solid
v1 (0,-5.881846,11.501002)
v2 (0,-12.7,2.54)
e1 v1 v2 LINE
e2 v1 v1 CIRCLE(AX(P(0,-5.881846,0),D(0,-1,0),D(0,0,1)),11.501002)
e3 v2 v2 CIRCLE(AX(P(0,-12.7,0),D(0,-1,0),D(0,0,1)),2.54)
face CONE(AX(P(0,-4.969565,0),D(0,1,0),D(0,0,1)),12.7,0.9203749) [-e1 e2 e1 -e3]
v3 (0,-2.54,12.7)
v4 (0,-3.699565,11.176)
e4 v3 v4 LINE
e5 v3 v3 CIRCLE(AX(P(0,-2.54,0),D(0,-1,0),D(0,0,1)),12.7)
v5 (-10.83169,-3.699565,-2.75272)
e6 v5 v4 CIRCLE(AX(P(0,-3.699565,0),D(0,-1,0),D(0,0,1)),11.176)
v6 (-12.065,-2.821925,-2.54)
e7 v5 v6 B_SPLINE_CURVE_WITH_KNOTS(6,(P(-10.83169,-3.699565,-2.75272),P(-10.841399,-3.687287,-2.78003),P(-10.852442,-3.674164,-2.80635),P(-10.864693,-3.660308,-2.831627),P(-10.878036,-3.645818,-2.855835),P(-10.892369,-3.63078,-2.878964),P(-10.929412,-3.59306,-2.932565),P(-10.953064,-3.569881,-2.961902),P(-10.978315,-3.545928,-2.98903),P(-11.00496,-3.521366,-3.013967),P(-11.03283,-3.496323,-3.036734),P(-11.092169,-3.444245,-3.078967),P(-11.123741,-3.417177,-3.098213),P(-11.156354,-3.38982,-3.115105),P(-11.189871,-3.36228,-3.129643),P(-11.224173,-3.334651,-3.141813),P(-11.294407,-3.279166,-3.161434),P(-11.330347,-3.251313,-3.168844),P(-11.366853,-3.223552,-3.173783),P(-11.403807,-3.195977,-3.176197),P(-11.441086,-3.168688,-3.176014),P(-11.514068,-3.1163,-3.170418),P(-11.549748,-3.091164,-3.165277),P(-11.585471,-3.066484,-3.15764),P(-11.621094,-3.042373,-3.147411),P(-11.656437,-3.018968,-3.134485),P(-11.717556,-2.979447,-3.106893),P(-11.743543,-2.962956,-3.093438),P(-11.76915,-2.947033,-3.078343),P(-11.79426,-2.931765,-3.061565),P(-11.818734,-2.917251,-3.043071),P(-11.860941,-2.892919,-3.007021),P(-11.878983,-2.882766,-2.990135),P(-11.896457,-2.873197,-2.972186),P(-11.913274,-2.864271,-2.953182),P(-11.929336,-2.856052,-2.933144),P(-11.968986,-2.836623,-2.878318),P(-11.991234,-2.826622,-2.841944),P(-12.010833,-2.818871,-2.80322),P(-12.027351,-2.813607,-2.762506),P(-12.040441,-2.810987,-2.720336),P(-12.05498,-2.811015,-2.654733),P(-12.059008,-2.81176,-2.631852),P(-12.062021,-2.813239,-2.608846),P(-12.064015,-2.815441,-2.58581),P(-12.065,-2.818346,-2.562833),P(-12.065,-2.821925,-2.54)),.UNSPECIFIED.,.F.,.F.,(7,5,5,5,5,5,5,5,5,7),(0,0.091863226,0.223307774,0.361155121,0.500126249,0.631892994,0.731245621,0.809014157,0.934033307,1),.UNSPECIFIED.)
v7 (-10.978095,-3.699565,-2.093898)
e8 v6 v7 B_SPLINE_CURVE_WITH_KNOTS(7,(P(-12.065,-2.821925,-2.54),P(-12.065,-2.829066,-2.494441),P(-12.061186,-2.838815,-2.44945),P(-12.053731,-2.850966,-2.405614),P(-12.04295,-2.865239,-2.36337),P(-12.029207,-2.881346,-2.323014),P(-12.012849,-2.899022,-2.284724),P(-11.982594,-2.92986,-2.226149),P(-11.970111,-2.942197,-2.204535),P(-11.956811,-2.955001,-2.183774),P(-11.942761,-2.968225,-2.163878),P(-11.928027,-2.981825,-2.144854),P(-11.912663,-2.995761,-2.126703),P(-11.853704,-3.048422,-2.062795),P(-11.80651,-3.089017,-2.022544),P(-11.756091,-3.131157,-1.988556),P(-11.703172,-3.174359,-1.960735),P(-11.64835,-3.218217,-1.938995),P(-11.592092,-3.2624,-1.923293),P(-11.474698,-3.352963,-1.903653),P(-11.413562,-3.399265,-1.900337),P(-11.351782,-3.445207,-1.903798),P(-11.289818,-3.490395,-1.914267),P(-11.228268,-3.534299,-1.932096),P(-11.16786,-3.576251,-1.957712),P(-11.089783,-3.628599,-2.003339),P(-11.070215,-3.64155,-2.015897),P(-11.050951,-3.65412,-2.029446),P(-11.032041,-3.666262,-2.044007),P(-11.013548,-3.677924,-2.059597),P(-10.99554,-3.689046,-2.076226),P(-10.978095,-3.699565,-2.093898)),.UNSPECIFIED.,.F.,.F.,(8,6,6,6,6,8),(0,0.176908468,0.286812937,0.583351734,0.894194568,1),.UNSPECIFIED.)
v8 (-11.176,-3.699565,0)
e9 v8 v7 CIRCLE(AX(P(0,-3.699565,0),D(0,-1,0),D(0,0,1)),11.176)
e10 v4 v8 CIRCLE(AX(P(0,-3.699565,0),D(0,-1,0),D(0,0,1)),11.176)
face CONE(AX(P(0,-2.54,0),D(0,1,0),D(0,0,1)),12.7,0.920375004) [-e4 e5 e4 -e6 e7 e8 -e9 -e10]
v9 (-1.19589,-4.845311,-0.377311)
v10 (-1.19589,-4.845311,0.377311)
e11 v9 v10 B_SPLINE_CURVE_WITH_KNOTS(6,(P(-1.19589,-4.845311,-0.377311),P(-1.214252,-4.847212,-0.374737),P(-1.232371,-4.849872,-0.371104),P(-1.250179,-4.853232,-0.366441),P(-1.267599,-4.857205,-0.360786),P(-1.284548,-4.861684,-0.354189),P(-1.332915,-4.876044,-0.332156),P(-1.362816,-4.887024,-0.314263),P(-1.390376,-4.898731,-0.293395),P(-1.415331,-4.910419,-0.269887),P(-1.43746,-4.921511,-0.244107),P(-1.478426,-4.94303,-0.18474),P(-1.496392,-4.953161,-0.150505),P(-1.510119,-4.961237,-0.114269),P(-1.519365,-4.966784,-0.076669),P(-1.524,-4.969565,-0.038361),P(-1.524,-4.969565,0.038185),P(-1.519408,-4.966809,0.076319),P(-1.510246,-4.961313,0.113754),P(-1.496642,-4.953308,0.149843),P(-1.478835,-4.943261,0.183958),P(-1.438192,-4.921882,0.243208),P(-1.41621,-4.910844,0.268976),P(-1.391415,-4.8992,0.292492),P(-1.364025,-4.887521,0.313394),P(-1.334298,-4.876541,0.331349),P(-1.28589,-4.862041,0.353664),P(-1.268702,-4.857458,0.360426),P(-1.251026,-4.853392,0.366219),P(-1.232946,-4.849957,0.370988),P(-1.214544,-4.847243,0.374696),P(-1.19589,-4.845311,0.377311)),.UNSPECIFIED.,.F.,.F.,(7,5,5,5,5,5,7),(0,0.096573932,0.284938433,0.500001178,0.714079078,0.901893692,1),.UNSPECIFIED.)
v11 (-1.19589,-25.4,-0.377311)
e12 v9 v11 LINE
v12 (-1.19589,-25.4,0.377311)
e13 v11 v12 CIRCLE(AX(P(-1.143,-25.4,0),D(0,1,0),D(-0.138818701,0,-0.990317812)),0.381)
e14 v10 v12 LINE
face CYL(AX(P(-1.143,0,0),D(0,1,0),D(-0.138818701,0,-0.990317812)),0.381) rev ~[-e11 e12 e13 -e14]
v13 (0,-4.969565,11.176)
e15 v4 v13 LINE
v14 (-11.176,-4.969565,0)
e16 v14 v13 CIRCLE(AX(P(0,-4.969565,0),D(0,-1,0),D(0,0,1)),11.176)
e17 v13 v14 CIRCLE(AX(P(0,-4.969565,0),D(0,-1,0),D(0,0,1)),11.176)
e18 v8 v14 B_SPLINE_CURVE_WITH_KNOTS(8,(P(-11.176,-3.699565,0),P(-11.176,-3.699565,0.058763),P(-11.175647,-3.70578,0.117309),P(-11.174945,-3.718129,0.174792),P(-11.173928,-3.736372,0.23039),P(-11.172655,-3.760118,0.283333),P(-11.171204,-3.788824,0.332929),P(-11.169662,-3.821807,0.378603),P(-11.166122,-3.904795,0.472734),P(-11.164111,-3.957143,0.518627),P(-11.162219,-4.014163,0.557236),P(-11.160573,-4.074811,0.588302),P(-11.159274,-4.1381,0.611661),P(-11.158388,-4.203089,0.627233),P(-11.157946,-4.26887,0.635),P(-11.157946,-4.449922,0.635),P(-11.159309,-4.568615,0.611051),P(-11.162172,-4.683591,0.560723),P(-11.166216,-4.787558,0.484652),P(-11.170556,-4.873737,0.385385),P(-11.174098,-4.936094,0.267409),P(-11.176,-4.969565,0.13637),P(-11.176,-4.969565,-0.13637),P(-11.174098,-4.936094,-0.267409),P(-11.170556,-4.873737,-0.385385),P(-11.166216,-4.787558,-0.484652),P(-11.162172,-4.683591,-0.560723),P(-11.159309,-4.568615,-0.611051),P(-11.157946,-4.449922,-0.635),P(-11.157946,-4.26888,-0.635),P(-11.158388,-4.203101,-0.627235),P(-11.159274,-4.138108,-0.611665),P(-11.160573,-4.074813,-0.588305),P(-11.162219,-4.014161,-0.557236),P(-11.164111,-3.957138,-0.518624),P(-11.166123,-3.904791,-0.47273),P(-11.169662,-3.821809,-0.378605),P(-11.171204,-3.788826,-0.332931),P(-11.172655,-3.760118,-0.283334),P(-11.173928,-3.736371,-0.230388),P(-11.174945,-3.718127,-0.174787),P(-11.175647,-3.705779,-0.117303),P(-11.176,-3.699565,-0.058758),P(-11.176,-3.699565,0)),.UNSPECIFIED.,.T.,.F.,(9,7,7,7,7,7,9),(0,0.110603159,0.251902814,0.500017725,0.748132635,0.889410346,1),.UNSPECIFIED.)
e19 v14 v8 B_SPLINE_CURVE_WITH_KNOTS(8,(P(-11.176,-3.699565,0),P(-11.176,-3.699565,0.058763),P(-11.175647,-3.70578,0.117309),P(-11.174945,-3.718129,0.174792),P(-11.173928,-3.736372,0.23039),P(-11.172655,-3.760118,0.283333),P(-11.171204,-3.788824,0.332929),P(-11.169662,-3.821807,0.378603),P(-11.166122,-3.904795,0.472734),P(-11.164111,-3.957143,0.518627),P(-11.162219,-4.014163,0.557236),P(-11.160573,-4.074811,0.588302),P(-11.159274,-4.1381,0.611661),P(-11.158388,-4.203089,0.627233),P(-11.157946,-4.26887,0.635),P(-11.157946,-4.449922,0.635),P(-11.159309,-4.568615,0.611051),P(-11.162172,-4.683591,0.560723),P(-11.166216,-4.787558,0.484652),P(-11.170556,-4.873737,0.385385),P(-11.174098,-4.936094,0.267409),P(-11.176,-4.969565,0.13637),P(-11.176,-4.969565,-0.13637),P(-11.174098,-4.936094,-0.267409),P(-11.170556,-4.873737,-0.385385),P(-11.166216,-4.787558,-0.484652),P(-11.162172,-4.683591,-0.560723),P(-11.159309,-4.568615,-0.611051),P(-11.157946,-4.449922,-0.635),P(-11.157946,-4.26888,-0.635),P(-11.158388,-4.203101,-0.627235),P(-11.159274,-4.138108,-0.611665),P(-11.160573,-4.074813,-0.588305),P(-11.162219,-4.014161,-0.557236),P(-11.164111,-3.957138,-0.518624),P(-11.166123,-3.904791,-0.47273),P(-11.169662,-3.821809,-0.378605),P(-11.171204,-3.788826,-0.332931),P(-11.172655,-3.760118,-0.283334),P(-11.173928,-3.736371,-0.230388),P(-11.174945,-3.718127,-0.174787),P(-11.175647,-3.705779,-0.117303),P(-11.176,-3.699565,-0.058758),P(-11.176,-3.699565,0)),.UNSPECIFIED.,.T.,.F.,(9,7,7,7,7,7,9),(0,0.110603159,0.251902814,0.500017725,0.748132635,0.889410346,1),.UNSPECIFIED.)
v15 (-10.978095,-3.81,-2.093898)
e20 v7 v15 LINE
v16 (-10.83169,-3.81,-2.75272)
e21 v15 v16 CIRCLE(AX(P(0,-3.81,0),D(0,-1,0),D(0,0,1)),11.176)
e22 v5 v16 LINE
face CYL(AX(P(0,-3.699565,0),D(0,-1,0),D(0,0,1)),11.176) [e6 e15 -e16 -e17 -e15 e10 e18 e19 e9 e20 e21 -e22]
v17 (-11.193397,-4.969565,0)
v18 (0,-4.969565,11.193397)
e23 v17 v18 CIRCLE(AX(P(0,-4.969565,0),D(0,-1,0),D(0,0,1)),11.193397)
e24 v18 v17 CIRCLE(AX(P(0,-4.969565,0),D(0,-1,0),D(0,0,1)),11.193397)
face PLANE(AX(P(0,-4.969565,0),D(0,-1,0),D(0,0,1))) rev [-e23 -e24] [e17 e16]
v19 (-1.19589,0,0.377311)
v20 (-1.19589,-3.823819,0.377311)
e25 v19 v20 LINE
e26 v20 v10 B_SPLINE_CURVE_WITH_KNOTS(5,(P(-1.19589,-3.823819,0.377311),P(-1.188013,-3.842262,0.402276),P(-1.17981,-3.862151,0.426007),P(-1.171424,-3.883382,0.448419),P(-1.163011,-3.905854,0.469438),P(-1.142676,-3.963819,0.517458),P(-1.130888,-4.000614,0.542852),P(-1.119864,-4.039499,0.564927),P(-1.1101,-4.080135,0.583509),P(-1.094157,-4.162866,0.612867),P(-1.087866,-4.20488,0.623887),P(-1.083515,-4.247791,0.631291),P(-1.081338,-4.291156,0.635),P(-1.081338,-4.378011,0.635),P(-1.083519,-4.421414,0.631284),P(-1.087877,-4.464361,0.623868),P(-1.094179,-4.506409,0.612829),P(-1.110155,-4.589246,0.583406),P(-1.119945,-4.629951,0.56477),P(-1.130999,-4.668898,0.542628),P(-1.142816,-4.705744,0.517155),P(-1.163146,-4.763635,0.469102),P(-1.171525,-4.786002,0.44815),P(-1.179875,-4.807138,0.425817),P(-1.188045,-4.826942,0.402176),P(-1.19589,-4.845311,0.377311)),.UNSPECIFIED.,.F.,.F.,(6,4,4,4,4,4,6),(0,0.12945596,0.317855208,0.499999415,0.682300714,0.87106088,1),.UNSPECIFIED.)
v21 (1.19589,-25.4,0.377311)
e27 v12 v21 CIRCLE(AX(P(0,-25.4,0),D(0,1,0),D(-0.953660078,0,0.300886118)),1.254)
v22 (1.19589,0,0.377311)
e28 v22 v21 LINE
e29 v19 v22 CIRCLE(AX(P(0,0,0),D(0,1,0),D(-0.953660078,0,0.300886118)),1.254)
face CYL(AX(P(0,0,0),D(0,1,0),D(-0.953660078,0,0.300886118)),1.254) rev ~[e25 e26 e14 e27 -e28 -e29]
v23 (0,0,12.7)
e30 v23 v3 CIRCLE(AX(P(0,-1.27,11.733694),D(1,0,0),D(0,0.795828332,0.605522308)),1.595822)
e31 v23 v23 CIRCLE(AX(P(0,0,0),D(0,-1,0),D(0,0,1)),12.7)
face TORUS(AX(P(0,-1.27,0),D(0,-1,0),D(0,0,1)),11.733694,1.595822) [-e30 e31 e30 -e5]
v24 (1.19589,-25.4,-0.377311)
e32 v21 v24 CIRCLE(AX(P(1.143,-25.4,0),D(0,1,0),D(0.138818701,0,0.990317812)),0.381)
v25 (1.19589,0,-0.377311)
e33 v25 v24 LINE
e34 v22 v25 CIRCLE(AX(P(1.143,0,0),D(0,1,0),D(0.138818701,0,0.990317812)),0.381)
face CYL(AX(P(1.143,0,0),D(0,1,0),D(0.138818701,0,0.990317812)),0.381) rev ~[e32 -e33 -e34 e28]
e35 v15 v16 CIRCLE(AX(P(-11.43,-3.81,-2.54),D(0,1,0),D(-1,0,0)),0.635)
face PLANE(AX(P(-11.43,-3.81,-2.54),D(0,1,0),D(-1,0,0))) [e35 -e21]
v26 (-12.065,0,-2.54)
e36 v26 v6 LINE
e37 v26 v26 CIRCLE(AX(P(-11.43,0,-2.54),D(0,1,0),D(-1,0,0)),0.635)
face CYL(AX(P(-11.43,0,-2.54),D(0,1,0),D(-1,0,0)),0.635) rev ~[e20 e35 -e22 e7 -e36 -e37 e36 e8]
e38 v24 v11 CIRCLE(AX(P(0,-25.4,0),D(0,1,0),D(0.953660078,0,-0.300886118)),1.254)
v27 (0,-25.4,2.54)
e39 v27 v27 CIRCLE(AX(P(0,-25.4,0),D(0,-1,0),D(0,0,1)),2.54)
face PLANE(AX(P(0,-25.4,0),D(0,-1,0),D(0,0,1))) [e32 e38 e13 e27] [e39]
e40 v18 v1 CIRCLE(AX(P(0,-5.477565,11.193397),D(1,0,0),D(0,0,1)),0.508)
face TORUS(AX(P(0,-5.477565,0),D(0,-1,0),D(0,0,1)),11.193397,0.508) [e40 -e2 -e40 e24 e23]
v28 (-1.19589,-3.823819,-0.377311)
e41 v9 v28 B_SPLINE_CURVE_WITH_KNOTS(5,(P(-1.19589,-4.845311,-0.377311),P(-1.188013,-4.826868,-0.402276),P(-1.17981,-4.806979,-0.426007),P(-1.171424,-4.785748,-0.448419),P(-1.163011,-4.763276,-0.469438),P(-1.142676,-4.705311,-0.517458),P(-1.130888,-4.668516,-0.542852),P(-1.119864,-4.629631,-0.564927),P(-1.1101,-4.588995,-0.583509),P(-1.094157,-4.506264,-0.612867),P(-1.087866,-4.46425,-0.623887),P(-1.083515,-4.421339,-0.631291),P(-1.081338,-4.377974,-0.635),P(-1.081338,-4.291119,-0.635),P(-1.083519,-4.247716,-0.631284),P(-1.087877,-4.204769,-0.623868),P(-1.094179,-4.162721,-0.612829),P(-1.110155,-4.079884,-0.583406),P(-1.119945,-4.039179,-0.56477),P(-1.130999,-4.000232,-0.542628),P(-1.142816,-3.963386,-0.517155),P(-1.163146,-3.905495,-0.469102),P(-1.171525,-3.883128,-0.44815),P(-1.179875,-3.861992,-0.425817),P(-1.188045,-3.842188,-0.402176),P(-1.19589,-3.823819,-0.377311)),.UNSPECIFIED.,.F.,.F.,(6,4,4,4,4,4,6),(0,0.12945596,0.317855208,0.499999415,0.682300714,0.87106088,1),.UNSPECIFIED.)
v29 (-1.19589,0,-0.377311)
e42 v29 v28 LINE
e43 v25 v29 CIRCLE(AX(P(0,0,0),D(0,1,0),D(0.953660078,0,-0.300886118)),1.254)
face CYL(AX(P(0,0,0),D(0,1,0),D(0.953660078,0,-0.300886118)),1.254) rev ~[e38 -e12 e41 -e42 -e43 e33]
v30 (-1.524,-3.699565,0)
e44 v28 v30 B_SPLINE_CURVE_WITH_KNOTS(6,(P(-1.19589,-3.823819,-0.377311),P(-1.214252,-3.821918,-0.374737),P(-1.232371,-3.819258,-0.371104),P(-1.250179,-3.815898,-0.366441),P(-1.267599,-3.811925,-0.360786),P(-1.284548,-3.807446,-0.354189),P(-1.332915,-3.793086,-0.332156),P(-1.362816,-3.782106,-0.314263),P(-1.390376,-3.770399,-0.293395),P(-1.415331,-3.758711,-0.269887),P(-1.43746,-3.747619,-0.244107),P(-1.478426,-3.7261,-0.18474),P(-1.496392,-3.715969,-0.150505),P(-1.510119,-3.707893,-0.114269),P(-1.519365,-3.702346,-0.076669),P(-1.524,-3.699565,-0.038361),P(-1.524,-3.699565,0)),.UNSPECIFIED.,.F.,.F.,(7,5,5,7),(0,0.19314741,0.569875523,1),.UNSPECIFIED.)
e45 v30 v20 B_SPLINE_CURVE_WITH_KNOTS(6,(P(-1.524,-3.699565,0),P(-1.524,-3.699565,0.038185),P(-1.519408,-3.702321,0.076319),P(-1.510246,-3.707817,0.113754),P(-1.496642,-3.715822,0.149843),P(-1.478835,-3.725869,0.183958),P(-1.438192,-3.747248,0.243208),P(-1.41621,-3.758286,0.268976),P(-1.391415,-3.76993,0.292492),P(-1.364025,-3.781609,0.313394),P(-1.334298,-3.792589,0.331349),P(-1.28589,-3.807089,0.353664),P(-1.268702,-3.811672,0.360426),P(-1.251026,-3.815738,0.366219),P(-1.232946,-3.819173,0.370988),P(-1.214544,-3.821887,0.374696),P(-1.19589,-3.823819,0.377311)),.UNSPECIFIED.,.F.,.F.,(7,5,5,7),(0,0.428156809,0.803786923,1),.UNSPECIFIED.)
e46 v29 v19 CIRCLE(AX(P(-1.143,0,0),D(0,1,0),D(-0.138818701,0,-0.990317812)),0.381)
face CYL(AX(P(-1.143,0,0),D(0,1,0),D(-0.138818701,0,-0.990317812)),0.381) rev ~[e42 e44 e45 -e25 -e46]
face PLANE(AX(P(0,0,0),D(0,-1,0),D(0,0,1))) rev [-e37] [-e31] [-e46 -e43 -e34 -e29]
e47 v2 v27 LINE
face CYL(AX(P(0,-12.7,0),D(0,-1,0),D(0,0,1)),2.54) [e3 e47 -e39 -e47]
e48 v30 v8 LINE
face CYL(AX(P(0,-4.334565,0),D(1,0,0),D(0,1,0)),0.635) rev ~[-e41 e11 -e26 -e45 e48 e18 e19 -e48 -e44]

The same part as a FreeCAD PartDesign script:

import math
import FreeCAD as App
import Part
import Sketcher
from FreeCAD import Vector
Q = App.Units.Quantity


def edges_at(feature, points):
    """Names of the edges that pass closest to the given points."""
    edges = feature.Shape.Edges
    near = lambda p: min(range(len(edges)), key=lambda i: edges[i].distToShape(Part.Vertex(*p))[0])
    return sorted({f"Edge{near(p) + 1}" for p in points})

doc = App.newDocument("Part")
body = doc.addObject("PartDesign::Body", "Body")

# Sketch on YZ plane
sketch1 = doc.addObject("Sketcher::SketchObject", "Sketch")
body.addObject(sketch1)
sketch1.AttachmentSupport = (doc.YZ_Plane, [""])
sketch1.MapMode = "FlatFace"
sketch1.addGeometry([
    Part.LineSegment(Vector(-25.4, 1, 0), Vector(0, 1, 0)),  # 0
    Part.LineSegment(Vector(0, 1, 0), Vector(0, 12.7, 0)),  # 1
    Part.ArcOfCircle(Part.Circle(Vector(-1.3, 11.7, 0), Vector(0, 0, 1), 1.6), math.radians(37), math.radians(143)),  # 2
    Part.LineSegment(Vector(-2.5, 12.7, 0), Vector(-3.7, 11.2, 0)),  # 3
    Part.LineSegment(Vector(-3.7, 11.2, 0), Vector(-5, 11.2, 0)),  # 4
    Part.LineSegment(Vector(-5, 11.2, 0), Vector(-5, 12.7, 0)),  # 5
    Part.LineSegment(Vector(-5, 12.7, 0), Vector(-12.7, 2.5, 0)),  # 6
    Part.LineSegment(Vector(-12.7, 2.5, 0), Vector(-25.4, 2.5, 0)),  # 7
    Part.LineSegment(Vector(-25.4, 2.5, 0), Vector(-25.4, 1, 0)),  # 8
], False)
sketch1.addConstraint([
    Sketcher.Constraint("Coincident", 0, 2, 1, 1),
    Sketcher.Constraint("Coincident", 1, 2, 2, 1),
    Sketcher.Constraint("Tangent", 2, 2, 3, 1),
    Sketcher.Constraint("Coincident", 3, 2, 4, 1),
    Sketcher.Constraint("Coincident", 4, 2, 5, 1),
    Sketcher.Constraint("Coincident", 5, 2, 6, 1),
    Sketcher.Constraint("Coincident", 6, 2, 7, 1),
    Sketcher.Constraint("Coincident", 7, 2, 8, 1),
    Sketcher.Constraint("Coincident", 8, 2, 0, 1),
    Sketcher.Constraint("Horizontal", 0),
    Sketcher.Constraint("Vertical", 1),
    Sketcher.Constraint("Horizontal", 4),
    Sketcher.Constraint("Vertical", 5),
    Sketcher.Constraint("Horizontal", 7),
    Sketcher.Constraint("Vertical", 8),
    Sketcher.Constraint("PointOnObject", 0, 2, -2),
    Sketcher.Constraint("Parallel", 3, 6),
    Sketcher.Constraint("Horizontal", 1, 2, 2, 2),
    Sketcher.Constraint("Horizontal", 2, 2, 5, 2),
    Sketcher.Constraint("DistanceX", 0, 1, 0, 2, Q("1 in")),
    Sketcher.Constraint("DistanceX", 7, 2, 7, 1, Q("0.5 in")),
    Sketcher.Constraint("DistanceX", 4, 2, 4, 1, Q("0.05 in")),
    Sketcher.Constraint("DistanceY", 5, 1, 5, 2, Q("0.06 in")),
    Sketcher.Constraint("DistanceY", -1, 1, 1, 2, Q("0.5 in")),
    Sketcher.Constraint("DistanceX", 2, 2, -1, 1, Q("0.1 in")),
    Sketcher.Constraint("DistanceY", -1, 1, 6, 2, Q("0.1 in")),
    Sketcher.Constraint("DistanceY", 1, 1, 1, 2, 11.7),
])
revolution = doc.addObject("PartDesign::Revolution", "Revolution")
body.addObject(revolution)
revolution.Profile = sketch1
revolution.ReferenceAxis = (sketch1, ["H_Axis"])
revolution.Angle = 360
doc.recompute()

fillet = doc.addObject("PartDesign::Fillet", "Fillet")
body.addObject(fillet)
fillet.Base = (revolution, edges_at(revolution, [(0, -4.97, -12.7)]))
fillet.Radius = Q("0.02 in")

# Sketch on XZ plane
sketch2 = doc.addObject("Sketcher::SketchObject", "Sketch001")
body.addObject(sketch2)
sketch2.AttachmentSupport = (doc.XZ_Plane, [""])
sketch2.MapMode = "FlatFace"
sketch2.addGeometry([
    Part.ArcOfCircle(Part.Circle(Vector(1.14, 0, 0), Vector(0, 0, 1), 0.13), math.radians(-90), math.radians(90)),
    Part.LineSegment(Vector(1.14, -0.13, 0), Vector(-1.14, -0.13, 0)),
    Part.ArcOfCircle(Part.Circle(Vector(-1.14, 0, 0), Vector(0, 0, 1), 0.13), math.radians(90), math.radians(270)),
    Part.LineSegment(Vector(-1.14, 0.13, 0), Vector(1.14, 0.13, 0)),
], False)
sketch2.addConstraint([
    Sketcher.Constraint("Tangent", 0, 1, 1, 1),
    Sketcher.Constraint("Tangent", 1, 2, 2, 2),
    Sketcher.Constraint("Tangent", 2, 1, 3, 1),
    Sketcher.Constraint("Tangent", 3, 2, 0, 2),
    Sketcher.Constraint("Horizontal", 1),
    Sketcher.Constraint("Horizontal", 3),
    Sketcher.Constraint("Symmetric", 0, 3, 2, 3, -1, 1),
    Sketcher.Constraint("Radius", 0, Q("0.005 in")),
    Sketcher.Constraint("DistanceX", 1, 2, 1, 1, Q("0.09 in")),
])
pocket1 = doc.addObject("PartDesign::Pocket", "Pocket")
body.addObject(pocket1)
pocket1.Profile = sketch2
pocket1.Type = "ThroughAll"
pocket1.Reversed = True

# Sketch on YZ plane
sketch3 = doc.addObject("Sketcher::SketchObject", "Sketch002")
body.addObject(sketch3)
sketch3.AttachmentSupport = (doc.YZ_Plane, [""])
sketch3.MapMode = "FlatFace"
sketch3.addGeometry(Part.Circle(Vector(-4.3, 0, 0), Vector(0, 0, 1), 0.6), False)
sketch3.addConstraint([
    Sketcher.Constraint("PointOnObject", 0, 3, -1),
    Sketcher.Constraint("Diameter", 0, Q("0.05 in")),
    Sketcher.Constraint("DistanceX", 0, 3, -1, 1, 4.334565),
])
pocket2 = doc.addObject("PartDesign::Pocket", "Pocket001")
body.addObject(pocket2)
pocket2.Profile = sketch3
pocket2.Type = "ThroughAll"

# Sketch on XZ plane
sketch4 = doc.addObject("Sketcher::SketchObject", "Sketch003")
body.addObject(sketch4)
sketch4.AttachmentSupport = (doc.XZ_Plane, [""])
sketch4.MapMode = "FlatFace"
sketch4.addGeometry(Part.Circle(Vector(-11.4, -2.5, 0), Vector(0, 0, 1), 0.6), False)
sketch4.addConstraint([
    Sketcher.Constraint("Diameter", 0, Q("0.05 in")),
    Sketcher.Constraint("DistanceY", 0, 3, -1, 1, Q("0.1 in")),
    Sketcher.Constraint("DistanceX", 0, 3, -1, 1, Q("0.45 in")),
])
pocket3 = doc.addObject("PartDesign::Pocket", "Pocket002")
body.addObject(pocket3)
pocket3.Profile = sketch4
pocket3.Length = Q("0.15 in")
pocket3.Reversed = True

# Sketch on XZ plane
sketch5 = doc.addObject("Sketcher::SketchObject", "Sketch004")
body.addObject(sketch5)
sketch5.AttachmentSupport = (doc.XZ_Plane, [""])
sketch5.MapMode = "FlatFace"
sketch5.addGeometry([
    Part.ArcOfCircle(Part.Circle(Vector(1.14, 0, 0), Vector(0, 0, 1), 0.38), math.radians(-82), math.radians(82)),  # 0
    Part.ArcOfCircle(Part.Circle(Vector(0, 0, 0), Vector(0, 0, 1), 1.25), math.radians(-162), math.radians(-18)),  # 1
    Part.ArcOfCircle(Part.Circle(Vector(-1.14, 0, 0), Vector(0, 0, 1), 0.38), math.radians(98), math.radians(262)),  # 2
    Part.ArcOfCircle(Part.Circle(Vector(0, 0, 0), Vector(0, 0, 1), 1.25), math.radians(18), math.radians(162)),  # 3
    Part.ArcOfCircle(Part.Circle(Vector(1.14, 0, 0), Vector(0, 0, 1), 0.13), math.radians(-90), math.radians(90)),  # 4
    Part.LineSegment(Vector(1.14, 0.13, 0), Vector(0.99, 0.13, 0)),  # 5
    Part.ArcOfCircle(Part.Circle(Vector(0, 0, 0), Vector(0, 0, 1), 1), math.radians(7), math.radians(173)),  # 6
    Part.LineSegment(Vector(-0.99, 0.13, 0), Vector(-1.14, 0.13, 0)),  # 7
    Part.ArcOfCircle(Part.Circle(Vector(-1.14, 0, 0), Vector(0, 0, 1), 0.13), math.radians(90), math.radians(270)),  # 8
    Part.LineSegment(Vector(-1.14, -0.13, 0), Vector(-0.99, -0.13, 0)),  # 9
    Part.ArcOfCircle(Part.Circle(Vector(0, 0, 0), Vector(0, 0, 1), 1), math.radians(-173), math.radians(-7)),  # 10
    Part.LineSegment(Vector(0.99, -0.13, 0), Vector(1.14, -0.13, 0)),  # 11
], False)
sketch5.addConstraint([
    Sketcher.Constraint("Coincident", 0, 1, 1, 2),
    Sketcher.Constraint("Coincident", 1, 1, 2, 2),
    Sketcher.Constraint("Coincident", 2, 1, 3, 2),
    Sketcher.Constraint("Coincident", 3, 1, 0, 2),
    Sketcher.Constraint("Tangent", 4, 2, 5, 1),
    Sketcher.Constraint("Coincident", 5, 2, 6, 1),
    Sketcher.Constraint("Coincident", 6, 2, 7, 1),
    Sketcher.Constraint("Tangent", 7, 2, 8, 1),
    Sketcher.Constraint("Tangent", 8, 2, 9, 1),
    Sketcher.Constraint("Coincident", 9, 2, 10, 1),
    Sketcher.Constraint("Coincident", 10, 2, 11, 1),
    Sketcher.Constraint("Tangent", 11, 2, 4, 1),
    Sketcher.Constraint("Horizontal", 5),
    Sketcher.Constraint("Horizontal", 7),
    Sketcher.Constraint("Horizontal", 9),
    Sketcher.Constraint("Horizontal", 11),
    Sketcher.Constraint("Coincident", 1, 3, -1, 1),
    Sketcher.Constraint("Coincident", 3, 3, -1, 1),
    Sketcher.Constraint("Coincident", 6, 3, -1, 1),
    Sketcher.Constraint("Coincident", 10, 3, -1, 1),
    Sketcher.Constraint("Coincident", 4, 3, 0, 3),
    Sketcher.Constraint("Coincident", 8, 3, 2, 3),
    Sketcher.Constraint("Equal", 0, 2),
    Sketcher.Constraint("Equal", 1, 3),
    Sketcher.Constraint("Equal", 4, 8),
    Sketcher.Constraint("Equal", 6, 10),
    Sketcher.Constraint("Symmetric", 0, 3, 2, 3, -1, 1),
    Sketcher.Constraint("PointOnObject", 0, 3, -1),
    Sketcher.Constraint("Radius", 0, Q("0.015 in")),
    Sketcher.Constraint("Radius", 4, Q("0.005 in")),
    Sketcher.Constraint("Radius", 1, 1.254),
    Sketcher.Constraint("Radius", 6, 1.0),
    Sketcher.Constraint("DistanceX", 2, 3, 0, 3, Q("0.09 in")),
])
pocket4 = doc.addObject("PartDesign::Pocket", "Pocket003")
body.addObject(pocket4)
pocket4.Profile = sketch5
pocket4.Type = "ThroughAll"
pocket4.Reversed = True

doc.recompute()
